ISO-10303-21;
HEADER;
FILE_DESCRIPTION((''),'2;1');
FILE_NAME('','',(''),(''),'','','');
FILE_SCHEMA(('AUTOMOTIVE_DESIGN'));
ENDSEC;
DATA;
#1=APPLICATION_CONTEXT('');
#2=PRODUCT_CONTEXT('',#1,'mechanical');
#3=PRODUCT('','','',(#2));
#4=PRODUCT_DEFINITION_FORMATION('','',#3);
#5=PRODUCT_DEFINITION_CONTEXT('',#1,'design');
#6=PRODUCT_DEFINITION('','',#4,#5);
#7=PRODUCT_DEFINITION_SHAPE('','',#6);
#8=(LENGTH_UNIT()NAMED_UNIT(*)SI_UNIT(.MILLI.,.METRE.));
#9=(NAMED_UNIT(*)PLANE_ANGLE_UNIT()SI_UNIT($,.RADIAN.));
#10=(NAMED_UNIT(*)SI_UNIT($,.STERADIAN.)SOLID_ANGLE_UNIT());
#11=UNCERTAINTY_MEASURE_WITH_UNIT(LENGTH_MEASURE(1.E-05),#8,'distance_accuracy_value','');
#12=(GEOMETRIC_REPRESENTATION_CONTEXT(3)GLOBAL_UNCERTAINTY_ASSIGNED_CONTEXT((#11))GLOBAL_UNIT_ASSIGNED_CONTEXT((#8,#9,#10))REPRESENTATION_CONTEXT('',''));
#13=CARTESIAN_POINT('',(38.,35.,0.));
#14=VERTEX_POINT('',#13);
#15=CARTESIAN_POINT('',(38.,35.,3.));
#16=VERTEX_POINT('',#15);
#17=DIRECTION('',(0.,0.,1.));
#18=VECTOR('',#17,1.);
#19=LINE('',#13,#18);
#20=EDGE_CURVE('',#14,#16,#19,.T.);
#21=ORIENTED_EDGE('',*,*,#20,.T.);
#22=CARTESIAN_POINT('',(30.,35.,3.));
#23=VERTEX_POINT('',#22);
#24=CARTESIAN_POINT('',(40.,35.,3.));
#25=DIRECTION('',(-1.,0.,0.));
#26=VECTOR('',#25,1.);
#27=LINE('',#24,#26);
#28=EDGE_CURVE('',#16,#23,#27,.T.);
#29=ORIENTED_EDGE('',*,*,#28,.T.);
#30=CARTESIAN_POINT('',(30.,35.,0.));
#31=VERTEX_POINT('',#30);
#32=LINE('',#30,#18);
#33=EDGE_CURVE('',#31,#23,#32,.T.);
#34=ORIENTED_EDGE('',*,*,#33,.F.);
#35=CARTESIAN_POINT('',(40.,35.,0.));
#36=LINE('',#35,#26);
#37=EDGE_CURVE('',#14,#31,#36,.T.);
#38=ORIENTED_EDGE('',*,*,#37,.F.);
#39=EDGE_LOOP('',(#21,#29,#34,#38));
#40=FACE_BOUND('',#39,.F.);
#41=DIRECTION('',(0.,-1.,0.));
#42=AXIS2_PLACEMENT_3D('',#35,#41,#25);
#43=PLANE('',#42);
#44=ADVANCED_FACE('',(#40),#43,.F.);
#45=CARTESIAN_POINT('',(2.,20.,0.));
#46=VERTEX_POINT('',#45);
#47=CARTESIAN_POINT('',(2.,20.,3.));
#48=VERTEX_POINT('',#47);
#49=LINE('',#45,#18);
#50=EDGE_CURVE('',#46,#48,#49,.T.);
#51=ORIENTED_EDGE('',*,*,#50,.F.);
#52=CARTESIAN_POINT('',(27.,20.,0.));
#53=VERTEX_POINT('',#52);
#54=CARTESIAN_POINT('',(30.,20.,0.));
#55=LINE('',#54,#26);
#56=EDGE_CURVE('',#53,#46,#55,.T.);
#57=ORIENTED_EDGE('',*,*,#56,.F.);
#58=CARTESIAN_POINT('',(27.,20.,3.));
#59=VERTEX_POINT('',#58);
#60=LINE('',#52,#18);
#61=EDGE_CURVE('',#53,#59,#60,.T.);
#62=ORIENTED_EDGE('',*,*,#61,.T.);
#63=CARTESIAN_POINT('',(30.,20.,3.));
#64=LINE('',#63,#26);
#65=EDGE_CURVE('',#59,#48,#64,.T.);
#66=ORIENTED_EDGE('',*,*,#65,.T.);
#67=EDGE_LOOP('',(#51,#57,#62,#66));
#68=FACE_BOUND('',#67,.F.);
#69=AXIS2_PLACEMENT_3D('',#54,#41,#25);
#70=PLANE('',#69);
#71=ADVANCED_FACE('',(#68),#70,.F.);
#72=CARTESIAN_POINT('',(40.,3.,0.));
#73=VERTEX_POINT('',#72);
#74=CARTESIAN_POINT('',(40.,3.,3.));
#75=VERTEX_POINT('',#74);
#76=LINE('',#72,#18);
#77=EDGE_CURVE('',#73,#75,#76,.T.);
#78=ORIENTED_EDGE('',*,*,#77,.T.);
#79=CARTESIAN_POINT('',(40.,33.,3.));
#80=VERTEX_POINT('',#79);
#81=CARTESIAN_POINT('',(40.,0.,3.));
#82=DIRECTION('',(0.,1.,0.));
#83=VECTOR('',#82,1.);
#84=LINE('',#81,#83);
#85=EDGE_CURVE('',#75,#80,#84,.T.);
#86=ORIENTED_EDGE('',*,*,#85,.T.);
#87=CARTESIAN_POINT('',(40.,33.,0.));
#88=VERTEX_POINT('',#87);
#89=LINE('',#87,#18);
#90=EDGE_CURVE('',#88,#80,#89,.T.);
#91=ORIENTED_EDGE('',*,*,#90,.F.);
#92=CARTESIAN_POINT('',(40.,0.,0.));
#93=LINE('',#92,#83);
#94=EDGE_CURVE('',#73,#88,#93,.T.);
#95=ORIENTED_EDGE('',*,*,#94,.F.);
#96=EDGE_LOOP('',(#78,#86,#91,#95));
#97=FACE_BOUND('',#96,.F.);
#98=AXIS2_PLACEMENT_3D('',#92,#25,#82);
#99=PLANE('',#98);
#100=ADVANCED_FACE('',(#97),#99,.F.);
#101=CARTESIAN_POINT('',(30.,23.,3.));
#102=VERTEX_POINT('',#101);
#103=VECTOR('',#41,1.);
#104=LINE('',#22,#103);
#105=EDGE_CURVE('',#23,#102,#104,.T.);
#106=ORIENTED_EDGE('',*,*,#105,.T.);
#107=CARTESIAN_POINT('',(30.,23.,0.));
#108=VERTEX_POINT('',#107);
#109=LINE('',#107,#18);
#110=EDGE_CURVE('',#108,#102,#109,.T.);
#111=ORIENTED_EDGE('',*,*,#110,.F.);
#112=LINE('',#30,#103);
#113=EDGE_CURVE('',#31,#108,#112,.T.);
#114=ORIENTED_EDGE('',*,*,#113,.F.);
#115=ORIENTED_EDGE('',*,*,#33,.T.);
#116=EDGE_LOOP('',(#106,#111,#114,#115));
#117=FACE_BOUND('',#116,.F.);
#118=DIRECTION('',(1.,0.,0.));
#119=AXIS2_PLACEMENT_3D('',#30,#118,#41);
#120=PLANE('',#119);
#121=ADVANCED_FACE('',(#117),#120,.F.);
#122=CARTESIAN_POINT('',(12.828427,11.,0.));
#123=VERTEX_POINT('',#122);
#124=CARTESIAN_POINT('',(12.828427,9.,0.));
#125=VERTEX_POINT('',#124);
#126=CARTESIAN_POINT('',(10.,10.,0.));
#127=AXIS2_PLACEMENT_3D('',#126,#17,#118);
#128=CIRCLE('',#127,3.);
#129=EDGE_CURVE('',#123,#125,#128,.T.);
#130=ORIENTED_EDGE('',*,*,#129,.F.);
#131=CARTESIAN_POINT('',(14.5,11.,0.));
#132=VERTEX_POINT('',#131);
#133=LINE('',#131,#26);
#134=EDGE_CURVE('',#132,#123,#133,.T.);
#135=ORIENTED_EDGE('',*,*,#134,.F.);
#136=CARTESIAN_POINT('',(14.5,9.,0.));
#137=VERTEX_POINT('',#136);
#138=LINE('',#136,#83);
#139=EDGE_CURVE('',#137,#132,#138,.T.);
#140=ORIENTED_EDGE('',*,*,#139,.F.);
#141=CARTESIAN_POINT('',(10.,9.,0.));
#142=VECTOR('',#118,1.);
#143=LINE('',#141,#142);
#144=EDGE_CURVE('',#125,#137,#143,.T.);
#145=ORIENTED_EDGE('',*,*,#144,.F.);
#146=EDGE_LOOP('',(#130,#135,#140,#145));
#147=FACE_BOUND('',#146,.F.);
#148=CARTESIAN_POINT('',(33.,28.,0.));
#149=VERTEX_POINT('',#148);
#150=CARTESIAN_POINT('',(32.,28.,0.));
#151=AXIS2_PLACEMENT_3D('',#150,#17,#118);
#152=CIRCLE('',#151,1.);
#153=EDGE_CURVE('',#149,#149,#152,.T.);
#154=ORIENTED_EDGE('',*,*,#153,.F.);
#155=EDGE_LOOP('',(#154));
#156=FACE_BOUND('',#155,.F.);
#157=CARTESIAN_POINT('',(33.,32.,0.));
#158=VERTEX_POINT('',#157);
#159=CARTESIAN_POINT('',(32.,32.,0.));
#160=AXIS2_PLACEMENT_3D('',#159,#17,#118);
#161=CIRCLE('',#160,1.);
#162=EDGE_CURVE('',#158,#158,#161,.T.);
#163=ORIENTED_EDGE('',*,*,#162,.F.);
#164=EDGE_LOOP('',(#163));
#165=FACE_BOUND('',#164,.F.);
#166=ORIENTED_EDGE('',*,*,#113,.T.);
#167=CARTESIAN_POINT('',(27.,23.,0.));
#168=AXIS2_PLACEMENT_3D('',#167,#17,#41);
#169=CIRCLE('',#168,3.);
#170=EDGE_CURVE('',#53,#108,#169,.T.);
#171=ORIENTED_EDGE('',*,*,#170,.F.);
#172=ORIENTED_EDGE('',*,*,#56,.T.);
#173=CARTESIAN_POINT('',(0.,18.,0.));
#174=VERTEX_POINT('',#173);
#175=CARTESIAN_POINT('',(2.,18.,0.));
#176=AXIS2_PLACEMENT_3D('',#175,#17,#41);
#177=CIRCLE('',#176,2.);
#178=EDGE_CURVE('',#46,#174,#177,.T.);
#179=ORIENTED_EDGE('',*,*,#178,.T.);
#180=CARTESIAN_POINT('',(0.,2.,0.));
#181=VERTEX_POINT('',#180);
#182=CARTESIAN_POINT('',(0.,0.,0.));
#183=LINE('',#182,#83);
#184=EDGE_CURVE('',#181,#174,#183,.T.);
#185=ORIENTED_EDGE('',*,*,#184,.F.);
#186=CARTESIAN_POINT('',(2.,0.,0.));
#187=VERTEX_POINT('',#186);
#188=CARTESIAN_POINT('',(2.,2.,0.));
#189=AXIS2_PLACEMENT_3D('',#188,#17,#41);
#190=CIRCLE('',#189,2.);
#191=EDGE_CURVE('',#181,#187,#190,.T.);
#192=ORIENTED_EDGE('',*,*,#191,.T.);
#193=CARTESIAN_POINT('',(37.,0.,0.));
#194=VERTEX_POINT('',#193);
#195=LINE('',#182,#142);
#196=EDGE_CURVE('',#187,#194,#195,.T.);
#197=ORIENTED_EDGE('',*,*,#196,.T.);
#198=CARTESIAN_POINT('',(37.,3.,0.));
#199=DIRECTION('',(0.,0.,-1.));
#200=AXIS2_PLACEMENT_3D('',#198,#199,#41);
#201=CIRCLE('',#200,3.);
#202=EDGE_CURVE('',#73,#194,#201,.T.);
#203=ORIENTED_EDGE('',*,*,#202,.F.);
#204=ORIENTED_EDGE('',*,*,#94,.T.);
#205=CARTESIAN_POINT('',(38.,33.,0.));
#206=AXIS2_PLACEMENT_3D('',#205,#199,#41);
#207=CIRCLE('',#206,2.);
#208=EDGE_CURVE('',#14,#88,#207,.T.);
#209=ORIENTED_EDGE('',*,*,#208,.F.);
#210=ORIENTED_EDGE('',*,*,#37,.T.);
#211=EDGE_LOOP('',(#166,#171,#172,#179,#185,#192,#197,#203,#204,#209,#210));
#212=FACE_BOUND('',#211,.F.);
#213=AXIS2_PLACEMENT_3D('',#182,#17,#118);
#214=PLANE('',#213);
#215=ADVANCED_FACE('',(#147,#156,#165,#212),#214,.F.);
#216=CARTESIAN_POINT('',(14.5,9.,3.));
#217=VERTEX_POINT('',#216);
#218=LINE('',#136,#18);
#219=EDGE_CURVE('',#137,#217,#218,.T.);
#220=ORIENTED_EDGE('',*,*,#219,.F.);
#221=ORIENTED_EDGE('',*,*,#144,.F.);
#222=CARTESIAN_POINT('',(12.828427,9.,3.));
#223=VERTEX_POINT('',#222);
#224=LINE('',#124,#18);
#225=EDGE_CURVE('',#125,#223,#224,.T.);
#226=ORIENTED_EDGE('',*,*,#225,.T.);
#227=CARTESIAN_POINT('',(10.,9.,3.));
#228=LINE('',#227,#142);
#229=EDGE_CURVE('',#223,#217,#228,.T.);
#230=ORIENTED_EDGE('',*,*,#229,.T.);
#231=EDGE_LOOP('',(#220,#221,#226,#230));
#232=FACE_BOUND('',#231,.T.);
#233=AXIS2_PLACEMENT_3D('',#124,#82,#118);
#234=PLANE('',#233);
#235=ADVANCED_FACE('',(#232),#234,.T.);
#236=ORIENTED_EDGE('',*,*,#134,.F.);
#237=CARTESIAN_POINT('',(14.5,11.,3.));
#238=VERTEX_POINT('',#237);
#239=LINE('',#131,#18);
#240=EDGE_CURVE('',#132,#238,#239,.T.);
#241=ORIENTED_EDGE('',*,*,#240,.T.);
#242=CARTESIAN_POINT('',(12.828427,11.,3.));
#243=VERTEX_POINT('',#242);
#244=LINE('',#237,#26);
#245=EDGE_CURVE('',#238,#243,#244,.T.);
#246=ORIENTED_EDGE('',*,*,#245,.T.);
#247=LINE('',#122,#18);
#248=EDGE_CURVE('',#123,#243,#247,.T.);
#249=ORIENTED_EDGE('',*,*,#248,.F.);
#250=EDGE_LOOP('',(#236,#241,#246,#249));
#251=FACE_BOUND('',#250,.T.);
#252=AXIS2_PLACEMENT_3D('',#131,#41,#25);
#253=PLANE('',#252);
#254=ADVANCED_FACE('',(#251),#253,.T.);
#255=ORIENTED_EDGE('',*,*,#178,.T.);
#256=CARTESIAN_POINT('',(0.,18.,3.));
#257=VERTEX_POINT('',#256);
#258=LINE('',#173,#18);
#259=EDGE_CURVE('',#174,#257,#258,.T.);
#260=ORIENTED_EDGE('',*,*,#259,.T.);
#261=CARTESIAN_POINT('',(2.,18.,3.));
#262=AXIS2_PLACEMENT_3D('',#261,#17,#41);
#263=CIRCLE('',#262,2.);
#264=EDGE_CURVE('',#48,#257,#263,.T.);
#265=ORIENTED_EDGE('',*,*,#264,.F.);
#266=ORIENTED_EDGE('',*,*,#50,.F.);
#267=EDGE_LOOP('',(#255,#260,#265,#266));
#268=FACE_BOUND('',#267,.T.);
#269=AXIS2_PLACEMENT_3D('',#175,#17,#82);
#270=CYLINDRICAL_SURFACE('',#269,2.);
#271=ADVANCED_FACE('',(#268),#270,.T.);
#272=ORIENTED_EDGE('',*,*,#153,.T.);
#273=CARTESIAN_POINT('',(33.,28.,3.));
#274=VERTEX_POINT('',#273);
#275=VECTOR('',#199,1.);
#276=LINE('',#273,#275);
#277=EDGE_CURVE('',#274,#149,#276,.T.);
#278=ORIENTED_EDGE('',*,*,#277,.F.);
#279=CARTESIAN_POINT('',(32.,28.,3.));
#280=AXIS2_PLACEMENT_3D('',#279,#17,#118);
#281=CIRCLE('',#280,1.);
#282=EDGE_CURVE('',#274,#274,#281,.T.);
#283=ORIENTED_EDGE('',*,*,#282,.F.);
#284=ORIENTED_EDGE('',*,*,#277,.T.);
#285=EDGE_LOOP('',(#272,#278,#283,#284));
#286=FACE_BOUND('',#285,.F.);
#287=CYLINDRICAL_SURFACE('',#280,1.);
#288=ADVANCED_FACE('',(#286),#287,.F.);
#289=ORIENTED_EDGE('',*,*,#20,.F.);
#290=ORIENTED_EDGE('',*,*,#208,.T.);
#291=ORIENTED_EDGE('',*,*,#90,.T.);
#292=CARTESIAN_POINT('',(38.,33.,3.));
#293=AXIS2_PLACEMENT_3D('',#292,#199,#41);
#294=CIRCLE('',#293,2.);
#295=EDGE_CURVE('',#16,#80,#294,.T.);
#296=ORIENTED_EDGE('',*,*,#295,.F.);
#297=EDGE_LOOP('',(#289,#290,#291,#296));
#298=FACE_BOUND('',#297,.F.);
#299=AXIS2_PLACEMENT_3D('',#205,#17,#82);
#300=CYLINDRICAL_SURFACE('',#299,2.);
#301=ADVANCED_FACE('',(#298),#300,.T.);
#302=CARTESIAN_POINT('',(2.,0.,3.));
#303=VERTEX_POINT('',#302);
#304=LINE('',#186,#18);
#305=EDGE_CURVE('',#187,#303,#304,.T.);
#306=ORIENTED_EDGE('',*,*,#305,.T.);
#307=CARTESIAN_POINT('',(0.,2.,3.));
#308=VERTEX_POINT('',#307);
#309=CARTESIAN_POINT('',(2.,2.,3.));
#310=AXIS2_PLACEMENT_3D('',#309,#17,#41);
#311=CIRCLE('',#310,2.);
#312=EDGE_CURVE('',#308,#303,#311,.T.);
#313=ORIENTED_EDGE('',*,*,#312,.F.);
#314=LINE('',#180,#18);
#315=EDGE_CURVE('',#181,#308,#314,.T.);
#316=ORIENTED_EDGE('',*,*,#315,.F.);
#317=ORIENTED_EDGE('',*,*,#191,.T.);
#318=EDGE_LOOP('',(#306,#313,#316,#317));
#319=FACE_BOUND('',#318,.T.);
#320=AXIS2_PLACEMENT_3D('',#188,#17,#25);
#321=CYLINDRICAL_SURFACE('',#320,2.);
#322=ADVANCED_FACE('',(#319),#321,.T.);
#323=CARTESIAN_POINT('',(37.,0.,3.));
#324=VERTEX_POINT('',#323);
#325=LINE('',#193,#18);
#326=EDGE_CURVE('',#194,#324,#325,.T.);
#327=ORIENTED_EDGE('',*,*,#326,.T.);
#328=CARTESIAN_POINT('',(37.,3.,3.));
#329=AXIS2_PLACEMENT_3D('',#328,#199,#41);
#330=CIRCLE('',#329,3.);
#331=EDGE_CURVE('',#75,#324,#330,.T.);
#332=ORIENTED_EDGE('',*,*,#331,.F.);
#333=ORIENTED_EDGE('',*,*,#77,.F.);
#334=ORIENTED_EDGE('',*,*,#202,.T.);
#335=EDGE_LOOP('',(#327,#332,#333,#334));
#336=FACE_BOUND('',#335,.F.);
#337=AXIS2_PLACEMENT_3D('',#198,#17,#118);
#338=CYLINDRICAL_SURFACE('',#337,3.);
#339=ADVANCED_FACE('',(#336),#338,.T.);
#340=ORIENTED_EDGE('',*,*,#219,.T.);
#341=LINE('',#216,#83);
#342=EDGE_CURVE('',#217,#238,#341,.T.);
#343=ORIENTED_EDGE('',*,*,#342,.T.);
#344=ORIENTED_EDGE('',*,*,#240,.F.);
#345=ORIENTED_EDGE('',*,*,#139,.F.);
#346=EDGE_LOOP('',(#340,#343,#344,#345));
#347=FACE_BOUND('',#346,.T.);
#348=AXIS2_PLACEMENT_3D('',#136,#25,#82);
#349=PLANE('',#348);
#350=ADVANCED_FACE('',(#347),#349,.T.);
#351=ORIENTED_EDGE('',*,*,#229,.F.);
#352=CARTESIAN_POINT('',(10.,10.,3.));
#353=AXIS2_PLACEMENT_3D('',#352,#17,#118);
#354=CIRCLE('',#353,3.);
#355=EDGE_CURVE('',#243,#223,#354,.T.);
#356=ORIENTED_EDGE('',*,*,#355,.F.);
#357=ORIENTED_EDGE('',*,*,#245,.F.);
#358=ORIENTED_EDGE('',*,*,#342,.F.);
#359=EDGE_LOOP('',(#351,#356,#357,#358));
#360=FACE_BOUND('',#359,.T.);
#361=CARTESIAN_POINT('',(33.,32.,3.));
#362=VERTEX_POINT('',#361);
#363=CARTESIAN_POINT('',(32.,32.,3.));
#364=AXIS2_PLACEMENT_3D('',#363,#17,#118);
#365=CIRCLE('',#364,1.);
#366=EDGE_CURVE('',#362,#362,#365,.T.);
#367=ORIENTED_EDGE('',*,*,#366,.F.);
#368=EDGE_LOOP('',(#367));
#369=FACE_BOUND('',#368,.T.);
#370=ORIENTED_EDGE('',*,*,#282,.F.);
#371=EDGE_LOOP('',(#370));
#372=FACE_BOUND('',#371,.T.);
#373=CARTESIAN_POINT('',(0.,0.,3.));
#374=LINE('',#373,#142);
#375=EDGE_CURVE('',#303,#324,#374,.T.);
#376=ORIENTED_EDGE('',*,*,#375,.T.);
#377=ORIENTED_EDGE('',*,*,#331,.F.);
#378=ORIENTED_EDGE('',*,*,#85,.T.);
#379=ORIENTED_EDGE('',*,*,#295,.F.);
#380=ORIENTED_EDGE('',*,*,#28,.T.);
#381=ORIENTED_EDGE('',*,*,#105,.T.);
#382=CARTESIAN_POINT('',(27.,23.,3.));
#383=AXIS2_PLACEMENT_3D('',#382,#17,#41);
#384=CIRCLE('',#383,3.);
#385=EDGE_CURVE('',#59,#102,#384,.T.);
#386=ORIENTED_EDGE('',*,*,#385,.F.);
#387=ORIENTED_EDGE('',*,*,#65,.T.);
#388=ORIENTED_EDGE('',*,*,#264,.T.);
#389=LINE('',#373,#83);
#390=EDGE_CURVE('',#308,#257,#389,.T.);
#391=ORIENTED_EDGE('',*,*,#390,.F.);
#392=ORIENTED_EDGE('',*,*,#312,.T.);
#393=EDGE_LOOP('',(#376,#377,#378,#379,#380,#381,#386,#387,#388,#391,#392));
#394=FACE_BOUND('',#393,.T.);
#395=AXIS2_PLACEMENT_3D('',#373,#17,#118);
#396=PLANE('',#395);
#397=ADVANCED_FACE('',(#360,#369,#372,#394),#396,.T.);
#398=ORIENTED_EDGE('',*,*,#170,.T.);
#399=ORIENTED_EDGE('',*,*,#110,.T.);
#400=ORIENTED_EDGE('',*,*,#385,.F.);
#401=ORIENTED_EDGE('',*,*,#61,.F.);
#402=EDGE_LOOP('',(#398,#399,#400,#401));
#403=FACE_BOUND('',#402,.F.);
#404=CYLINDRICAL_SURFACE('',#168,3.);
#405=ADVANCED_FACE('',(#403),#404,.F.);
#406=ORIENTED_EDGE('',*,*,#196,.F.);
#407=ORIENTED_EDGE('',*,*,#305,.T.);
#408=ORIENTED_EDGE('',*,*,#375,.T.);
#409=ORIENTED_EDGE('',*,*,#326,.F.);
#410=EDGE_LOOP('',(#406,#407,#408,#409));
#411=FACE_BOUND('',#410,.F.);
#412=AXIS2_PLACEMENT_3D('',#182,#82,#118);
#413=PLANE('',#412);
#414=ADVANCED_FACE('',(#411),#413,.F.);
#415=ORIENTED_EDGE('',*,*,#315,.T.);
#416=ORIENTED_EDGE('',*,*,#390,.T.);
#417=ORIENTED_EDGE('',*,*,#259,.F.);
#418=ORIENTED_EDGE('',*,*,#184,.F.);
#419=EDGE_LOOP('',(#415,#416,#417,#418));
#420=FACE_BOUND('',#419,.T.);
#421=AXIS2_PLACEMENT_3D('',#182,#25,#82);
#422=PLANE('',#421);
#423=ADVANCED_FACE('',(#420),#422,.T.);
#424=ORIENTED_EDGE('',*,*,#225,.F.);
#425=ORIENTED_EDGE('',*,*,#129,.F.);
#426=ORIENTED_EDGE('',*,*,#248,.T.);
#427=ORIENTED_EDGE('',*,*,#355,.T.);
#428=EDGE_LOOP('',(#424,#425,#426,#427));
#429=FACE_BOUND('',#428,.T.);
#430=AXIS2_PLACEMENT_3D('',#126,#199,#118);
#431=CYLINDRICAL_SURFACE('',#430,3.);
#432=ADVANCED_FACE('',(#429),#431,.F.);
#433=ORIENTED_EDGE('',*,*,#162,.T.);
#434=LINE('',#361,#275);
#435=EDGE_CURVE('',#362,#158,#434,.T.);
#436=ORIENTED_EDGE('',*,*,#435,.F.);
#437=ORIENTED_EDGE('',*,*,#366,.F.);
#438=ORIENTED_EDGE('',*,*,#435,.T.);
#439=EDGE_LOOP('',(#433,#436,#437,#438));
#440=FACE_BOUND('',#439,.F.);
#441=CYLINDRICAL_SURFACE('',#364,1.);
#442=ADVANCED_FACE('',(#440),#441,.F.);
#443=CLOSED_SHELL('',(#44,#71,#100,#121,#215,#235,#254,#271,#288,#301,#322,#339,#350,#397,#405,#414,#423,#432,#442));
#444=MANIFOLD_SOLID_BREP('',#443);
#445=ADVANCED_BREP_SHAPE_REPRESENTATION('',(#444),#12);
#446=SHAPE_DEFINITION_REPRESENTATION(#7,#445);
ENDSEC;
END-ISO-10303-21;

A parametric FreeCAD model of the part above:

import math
import FreeCAD as App
import Part
import Sketcher
from FreeCAD import Vector
Q = App.Units.Quantity


def edges_at(feature, points):
    """Names of the edges that pass closest to the given points."""
    edges = feature.Shape.Edges
    near = lambda p: min(range(len(edges)), key=lambda i: edges[i].distToShape(Part.Vertex(*p))[0])
    return sorted({f"Edge{near(p) + 1}" for p in points})


def add_polygon(sketch, points):
    """Adds a closed chain of lines whose ends are joined by coincident constraints."""
    first, n = sketch.GeometryCount, len(points)
    for a, b in zip(points, points[1:] + points[:1]):
        sketch.addGeometry(Part.LineSegment(App.Vector(*a, 0), App.Vector(*b, 0)), False)
    for i in range(n):
        sketch.addConstraint(Sketcher.Constraint("Coincident", first + i, 2, first + (i + 1) % n, 1))

doc = App.newDocument("Part")
body = doc.addObject("PartDesign::Body", "Body")

# Sketch on XY plane
sketch1 = body.newObject("Sketcher::SketchObject", "Sketch")
sketch1.AttachmentSupport = (doc.getObject("XY_Plane"), [""])
sketch1.MapMode = "FlatFace"
add_polygon(sketch1, [(0, 20), (0, 0), (40, 0), (40, 35), (30, 35), (30, 20)])  # lines 0-5
sketch1.addGeometry(Part.ArcOfCircle(Part.Circle(Vector(10, 10, 0), Vector(0, 0, 1), 3), math.radians(19), math.radians(341)), False)  # 6
sketch1.addGeometry(Part.LineSegment(Vector(12.8, 11, 0), Vector(14.5, 11, 0)), False)  # 7
sketch1.addGeometry(Part.LineSegment(Vector(14.5, 11, 0), Vector(14.5, 9, 0)), False)  # 8
sketch1.addGeometry(Part.LineSegment(Vector(14.5, 9, 0), Vector(12.8, 9, 0)), False)  # 9
sketch1.addConstraint(Sketcher.Constraint("Coincident", 6, 1, 7, 1))
sketch1.addConstraint(Sketcher.Constraint("Coincident", 7, 2, 8, 1))
sketch1.addConstraint(Sketcher.Constraint("Coincident", 8, 2, 9, 1))
sketch1.addConstraint(Sketcher.Constraint("Coincident", 9, 2, 6, 2))
sketch1.addConstraint(Sketcher.Constraint("Vertical", 0))
sketch1.addConstraint(Sketcher.Constraint("Horizontal", 1))
sketch1.addConstraint(Sketcher.Constraint("Vertical", 2))
sketch1.addConstraint(Sketcher.Constraint("Horizontal", 3))
sketch1.addConstraint(Sketcher.Constraint("Vertical", 4))
sketch1.addConstraint(Sketcher.Constraint("Horizontal", 5))
sketch1.addConstraint(Sketcher.Constraint("Horizontal", 7))
sketch1.addConstraint(Sketcher.Constraint("Vertical", 8))
sketch1.addConstraint(Sketcher.Constraint("Horizontal", 9))
sketch1.addConstraint(Sketcher.Constraint("Coincident", 0, 2, -1, 1))
sketch1.addConstraint(Sketcher.Constraint("Vertical", 6, 1, 9, 2))
sketch1.addConstraint(Sketcher.Constraint("Radius", 6, Q("3 mm")))
sketch1.addConstraint(Sketcher.Constraint("DistanceX", 1, 1, 1, 2, Q("40 mm")))
sketch1.addConstraint(Sketcher.Constraint("DistanceX", 3, 2, 3, 1, Q("10 mm")))
sketch1.addConstraint(Sketcher.Constraint("DistanceY", 0, 2, 0, 1, Q("20 mm")))
sketch1.addConstraint(Sketcher.Constraint("DistanceY", 2, 1, 2, 2, Q("35 mm")))
sketch1.addConstraint(Sketcher.Constraint("DistanceX", -1, 1, 6, 3, Q("10 mm")))
sketch1.addConstraint(Sketcher.Constraint("DistanceY", -1, 1, 6, 3, Q("10 mm")))
sketch1.addConstraint(Sketcher.Constraint("DistanceY", 6, 3, 6, 1, Q("1 mm")))
sketch1.addConstraint(Sketcher.Constraint("DistanceX", 6, 3, 7, 2, Q("4.5 mm")))
pad1 = body.newObject("PartDesign::Pad", "Pad")
pad1.Profile = sketch1
pad1.Length = 3
doc.recompute()

fillet = body.newObject("PartDesign::Fillet", "Fillet")
fillet.Base = (pad1, edges_at(pad1, [(30, 20, 1.5), (40, 0, 1.5)]))
fillet.Radius = 3
doc.recompute()

fillet2 = body.newObject("PartDesign::Fillet", "Fillet001")
fillet2.Base = (fillet, edges_at(fillet, [(0, 20, 1.5), (0, 0, 1.5)]))
fillet2.Radius = 2
doc.recompute()

fillet3 = body.newObject("PartDesign::Fillet", "Fillet002")
fillet3.Base = (fillet2, edges_at(fillet2, [(40, 35, 1.5)]))
fillet3.Radius = 2

# Sketch on XY plane
sketch2 = body.newObject("Sketcher::SketchObject", "Sketch001")
sketch2.AttachmentSupport = (doc.getObject("XY_Plane"), [""])
sketch2.MapMode = "FlatFace"
sketch2.AttachmentOffset = App.Placement(Vector(0, 0, 3), App.Rotation())
sketch2.addGeometry(Part.Circle(Vector(32, 28, 0), Vector(0, 0, 1), 1), False)
sketch2.addGeometry(Part.Circle(Vector(32, 32, 0), Vector(0, 0, 1), 1), False)
sketch2.addConstraint(Sketcher.Constraint("Equal", 0, 1))
sketch2.addConstraint(Sketcher.Constraint("Vertical", 0, 3, 1, 3))
sketch2.addConstraint(Sketcher.Constraint("Diameter", 0, Q("2 mm")))
sketch2.addConstraint(Sketcher.Constraint("DistanceX", -1, 1, 0, 3, Q("32 mm")))
sketch2.addConstraint(Sketcher.Constraint("DistanceY", -1, 1, 0, 3, Q("28 mm")))
sketch2.addConstraint(Sketcher.Constraint("DistanceY", -1, 1, 1, 3, Q("32 mm")))
pocket1 = body.newObject("PartDesign::Pocket", "Pocket")
pocket1.Profile = sketch2
pocket1.Length = 10

doc.recompute()
